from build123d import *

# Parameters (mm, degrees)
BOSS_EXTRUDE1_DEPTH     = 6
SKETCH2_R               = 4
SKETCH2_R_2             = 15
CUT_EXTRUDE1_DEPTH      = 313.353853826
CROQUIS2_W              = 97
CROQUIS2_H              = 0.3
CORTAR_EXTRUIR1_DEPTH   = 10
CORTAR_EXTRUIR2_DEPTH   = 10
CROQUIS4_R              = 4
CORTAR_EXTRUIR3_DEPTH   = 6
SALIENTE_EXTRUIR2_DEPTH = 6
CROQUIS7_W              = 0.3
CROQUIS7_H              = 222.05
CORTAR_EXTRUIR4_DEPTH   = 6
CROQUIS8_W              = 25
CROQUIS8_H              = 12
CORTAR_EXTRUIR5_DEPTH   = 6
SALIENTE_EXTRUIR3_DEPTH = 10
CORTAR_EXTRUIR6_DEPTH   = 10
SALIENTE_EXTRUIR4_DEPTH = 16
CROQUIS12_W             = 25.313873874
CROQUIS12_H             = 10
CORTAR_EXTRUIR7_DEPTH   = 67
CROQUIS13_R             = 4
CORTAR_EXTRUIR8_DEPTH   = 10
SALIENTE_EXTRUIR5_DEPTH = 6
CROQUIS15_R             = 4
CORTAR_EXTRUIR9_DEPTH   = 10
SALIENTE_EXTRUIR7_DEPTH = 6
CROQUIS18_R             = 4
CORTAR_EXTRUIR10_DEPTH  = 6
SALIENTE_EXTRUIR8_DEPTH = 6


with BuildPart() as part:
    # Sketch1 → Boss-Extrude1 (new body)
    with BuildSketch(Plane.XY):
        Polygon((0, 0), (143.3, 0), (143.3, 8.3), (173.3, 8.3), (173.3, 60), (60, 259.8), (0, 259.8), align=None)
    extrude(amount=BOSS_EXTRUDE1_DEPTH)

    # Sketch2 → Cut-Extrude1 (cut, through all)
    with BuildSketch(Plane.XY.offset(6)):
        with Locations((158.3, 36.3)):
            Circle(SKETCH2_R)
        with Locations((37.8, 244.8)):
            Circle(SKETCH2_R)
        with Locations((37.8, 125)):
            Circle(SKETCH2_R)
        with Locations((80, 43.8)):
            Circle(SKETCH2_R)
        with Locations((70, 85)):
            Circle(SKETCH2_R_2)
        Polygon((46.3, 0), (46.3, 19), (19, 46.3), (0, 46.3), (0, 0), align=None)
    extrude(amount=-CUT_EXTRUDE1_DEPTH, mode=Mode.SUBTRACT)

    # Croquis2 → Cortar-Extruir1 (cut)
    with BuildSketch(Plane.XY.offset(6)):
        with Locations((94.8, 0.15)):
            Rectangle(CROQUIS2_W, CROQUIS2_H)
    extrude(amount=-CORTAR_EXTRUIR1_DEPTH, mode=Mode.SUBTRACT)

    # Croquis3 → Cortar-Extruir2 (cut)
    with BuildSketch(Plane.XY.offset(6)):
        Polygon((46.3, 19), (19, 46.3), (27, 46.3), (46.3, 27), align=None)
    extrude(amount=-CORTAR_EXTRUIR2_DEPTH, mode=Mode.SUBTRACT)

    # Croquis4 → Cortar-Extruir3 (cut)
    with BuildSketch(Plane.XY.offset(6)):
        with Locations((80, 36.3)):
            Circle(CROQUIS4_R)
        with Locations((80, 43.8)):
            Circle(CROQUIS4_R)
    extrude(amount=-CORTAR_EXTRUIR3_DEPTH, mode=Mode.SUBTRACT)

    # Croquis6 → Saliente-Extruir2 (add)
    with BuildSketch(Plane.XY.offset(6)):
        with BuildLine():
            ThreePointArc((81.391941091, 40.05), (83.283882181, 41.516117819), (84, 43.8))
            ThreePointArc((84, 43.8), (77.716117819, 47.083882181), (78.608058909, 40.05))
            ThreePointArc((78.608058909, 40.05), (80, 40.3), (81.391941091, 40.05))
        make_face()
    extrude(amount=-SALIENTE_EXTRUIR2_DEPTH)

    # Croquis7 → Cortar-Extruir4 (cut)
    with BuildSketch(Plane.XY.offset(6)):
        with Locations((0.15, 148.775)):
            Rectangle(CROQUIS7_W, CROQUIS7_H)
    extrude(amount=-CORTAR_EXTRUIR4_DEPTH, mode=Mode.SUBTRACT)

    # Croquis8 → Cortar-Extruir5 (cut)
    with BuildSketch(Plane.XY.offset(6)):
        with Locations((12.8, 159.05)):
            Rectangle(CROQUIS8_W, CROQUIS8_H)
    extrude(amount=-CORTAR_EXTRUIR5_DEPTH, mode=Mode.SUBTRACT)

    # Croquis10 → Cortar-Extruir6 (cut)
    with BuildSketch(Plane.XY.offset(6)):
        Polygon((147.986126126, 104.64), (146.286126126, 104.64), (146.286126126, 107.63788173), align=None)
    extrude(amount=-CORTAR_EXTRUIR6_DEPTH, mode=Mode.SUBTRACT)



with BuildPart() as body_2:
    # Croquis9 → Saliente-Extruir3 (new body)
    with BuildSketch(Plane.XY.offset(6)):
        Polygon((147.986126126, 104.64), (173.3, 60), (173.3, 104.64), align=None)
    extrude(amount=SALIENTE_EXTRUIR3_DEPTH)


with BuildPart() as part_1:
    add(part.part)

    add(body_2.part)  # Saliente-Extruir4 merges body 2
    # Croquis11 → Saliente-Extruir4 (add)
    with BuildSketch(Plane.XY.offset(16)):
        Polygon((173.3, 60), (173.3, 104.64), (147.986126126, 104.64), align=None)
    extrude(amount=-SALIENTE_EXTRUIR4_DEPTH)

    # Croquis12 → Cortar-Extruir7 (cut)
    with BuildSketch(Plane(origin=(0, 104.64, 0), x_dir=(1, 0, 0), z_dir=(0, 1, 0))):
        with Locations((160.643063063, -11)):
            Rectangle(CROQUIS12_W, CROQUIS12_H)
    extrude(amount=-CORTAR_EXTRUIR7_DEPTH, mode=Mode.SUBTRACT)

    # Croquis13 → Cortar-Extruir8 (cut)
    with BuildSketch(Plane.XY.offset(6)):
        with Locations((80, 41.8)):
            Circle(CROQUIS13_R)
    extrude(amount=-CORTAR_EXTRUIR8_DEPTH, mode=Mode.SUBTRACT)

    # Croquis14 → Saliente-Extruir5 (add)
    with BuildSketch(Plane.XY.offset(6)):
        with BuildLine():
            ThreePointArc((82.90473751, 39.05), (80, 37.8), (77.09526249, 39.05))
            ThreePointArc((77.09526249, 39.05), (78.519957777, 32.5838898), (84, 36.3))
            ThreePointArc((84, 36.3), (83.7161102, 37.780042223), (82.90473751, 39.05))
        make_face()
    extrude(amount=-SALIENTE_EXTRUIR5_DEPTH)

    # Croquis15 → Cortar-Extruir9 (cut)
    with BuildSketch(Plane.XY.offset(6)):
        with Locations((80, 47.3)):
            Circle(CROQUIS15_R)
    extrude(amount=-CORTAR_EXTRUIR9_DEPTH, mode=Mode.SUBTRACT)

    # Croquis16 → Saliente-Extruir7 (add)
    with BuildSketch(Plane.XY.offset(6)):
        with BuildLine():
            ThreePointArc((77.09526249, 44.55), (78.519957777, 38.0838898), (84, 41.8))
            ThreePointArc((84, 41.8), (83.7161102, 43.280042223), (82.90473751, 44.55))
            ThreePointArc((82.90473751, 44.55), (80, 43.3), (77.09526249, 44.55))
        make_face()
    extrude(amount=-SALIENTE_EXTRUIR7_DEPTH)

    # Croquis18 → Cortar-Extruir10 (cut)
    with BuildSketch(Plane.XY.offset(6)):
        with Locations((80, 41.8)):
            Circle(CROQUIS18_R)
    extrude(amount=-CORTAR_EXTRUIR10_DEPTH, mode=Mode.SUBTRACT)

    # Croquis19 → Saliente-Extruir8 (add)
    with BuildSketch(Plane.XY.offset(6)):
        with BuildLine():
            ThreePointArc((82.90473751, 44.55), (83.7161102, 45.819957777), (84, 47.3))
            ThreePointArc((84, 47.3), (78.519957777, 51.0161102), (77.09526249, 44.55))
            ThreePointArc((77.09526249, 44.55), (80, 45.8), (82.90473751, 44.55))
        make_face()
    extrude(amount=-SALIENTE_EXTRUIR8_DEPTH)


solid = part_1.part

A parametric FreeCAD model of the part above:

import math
import FreeCAD as App
import Part
import Sketcher
from FreeCAD import Vector

doc = App.newDocument("Part")
body = doc.addObject("PartDesign::Body", "Body")

# Sketch on XY plane
sketch1 = body.newObject("Sketcher::SketchObject", "Sketch")
sketch1.AttachmentSupport = (doc.getObject("XY_Plane"), [""])
sketch1.MapMode = "FlatFace"
sketch1.addGeometry(Part.LineSegment(Vector(0, 0, 0), Vector(143, 0, 0)), False)
sketch1.addGeometry(Part.LineSegment(Vector(143, 0, 0), Vector(143, 8, 0)), False)
sketch1.addGeometry(Part.LineSegment(Vector(143, 8, 0), Vector(173, 8, 0)), False)
sketch1.addGeometry(Part.LineSegment(Vector(173, 8, 0), Vector(173, 60, 0)), False)
sketch1.addGeometry(Part.LineSegment(Vector(173, 60, 0), Vector(60, 260, 0)), False)
sketch1.addGeometry(Part.LineSegment(Vector(60, 260, 0), Vector(0, 260, 0)), False)
sketch1.addGeometry(Part.LineSegment(Vector(0, 260, 0), Vector(0, 0, 0)), False)
sketch1.addConstraint(Sketcher.Constraint("Coincident", 0, 2, 1, 1))
sketch1.addConstraint(Sketcher.Constraint("Coincident", 1, 2, 2, 1))
sketch1.addConstraint(Sketcher.Constraint("Coincident", 2, 2, 3, 1))
sketch1.addConstraint(Sketcher.Constraint("Coincident", 3, 2, 4, 1))
sketch1.addConstraint(Sketcher.Constraint("Coincident", 4, 2, 5, 1))
sketch1.addConstraint(Sketcher.Constraint("Coincident", 5, 2, 6, 1))
sketch1.addConstraint(Sketcher.Constraint("Coincident", 6, 2, 0, 1))
sketch1.addConstraint(Sketcher.Constraint("Horizontal", 0))
sketch1.addConstraint(Sketcher.Constraint("Vertical", 1))
sketch1.addConstraint(Sketcher.Constraint("Horizontal", 2))
sketch1.addConstraint(Sketcher.Constraint("Vertical", 3))
sketch1.addConstraint(Sketcher.Constraint("Horizontal", 5))
sketch1.addConstraint(Sketcher.Constraint("Vertical", 6))
sketch1.addConstraint(Sketcher.Constraint("Coincident", 6, 2, -1, 1))
sketch1.addConstraint(Sketcher.Constraint("DistanceX", 2, 1, 2, 2, 30.0))
sketch1.addConstraint(Sketcher.Constraint("DistanceX", 5, 2, 5, 1, 60.0))
sketch1.addConstraint(Sketcher.Constraint("DistanceX", 0, 1, 0, 2, 143.3))
sketch1.addConstraint(Sketcher.Constraint("DistanceY", 1, 1, 1, 2, 8.3))
sketch1.addConstraint(Sketcher.Constraint("DistanceY", 3, 1, 3, 2, 51.7))
sketch1.addConstraint(Sketcher.Constraint("DistanceY", 6, 2, 6, 1, 259.8))
pad1 = body.newObject("PartDesign::Pad", "Pad")
pad1.Profile = sketch1
pad1.Length = 6

# Sketch on XY plane
sketch2 = body.newObject("Sketcher::SketchObject", "Sketch001")
sketch2.AttachmentSupport = (doc.getObject("XY_Plane"), [""])
sketch2.MapMode = "FlatFace"
sketch2.AttachmentOffset = App.Placement(Vector(0, 0, 6), App.Rotation())
sketch2.addGeometry(Part.Circle(Vector(158.3, 36.3, 0), Vector(0, 0, 1), 4), False)
sketch2.addGeometry(Part.Circle(Vector(37.8, 244.8, 0), Vector(0, 0, 1), 4), False)
sketch2.addGeometry(Part.Circle(Vector(37.8, 125, 0), Vector(0, 0, 1), 4), False)
sketch2.addGeometry(Part.Circle(Vector(80, 43.8, 0), Vector(0, 0, 1), 4), False)
sketch2.addGeometry(Part.Circle(Vector(70, 85, 0), Vector(0, 0, 1), 15), False)
sketch2.addGeometry(Part.LineSegment(Vector(46.3, 0, 0), Vector(46.3, 19, 0)), False)
sketch2.addGeometry(Part.LineSegment(Vector(46.3, 19, 0), Vector(19, 46.3, 0)), False)
sketch2.addGeometry(Part.LineSegment(Vector(19, 46.3, 0), Vector(0, 46.3, 0)), False)
sketch2.addGeometry(Part.LineSegment(Vector(0, 46.3, 0), Vector(0, 0, 0)), False)
sketch2.addGeometry(Part.LineSegment(Vector(0, 0, 0), Vector(46.3, 0, 0)), False)
sketch2.addConstraint(Sketcher.Constraint("Coincident", 5, 2, 6, 1))
sketch2.addConstraint(Sketcher.Constraint("Coincident", 6, 2, 7, 1))
sketch2.addConstraint(Sketcher.Constraint("Coincident", 7, 2, 8, 1))
sketch2.addConstraint(Sketcher.Constraint("Coincident", 8, 2, 9, 1))
sketch2.addConstraint(Sketcher.Constraint("Coincident", 9, 2, 5, 1))
sketch2.addConstraint(Sketcher.Constraint("Vertical", 5))
sketch2.addConstraint(Sketcher.Constraint("Horizontal", 7))
sketch2.addConstraint(Sketcher.Constraint("Vertical", 8))
sketch2.addConstraint(Sketcher.Constraint("Horizontal", 9))
sketch2.addConstraint(Sketcher.Constraint("Coincident", 8, 2, -1, 1))
sketch2.addConstraint(Sketcher.Constraint("Equal", 0, 1))
sketch2.addConstraint(Sketcher.Constraint("Equal", 1, 2))
sketch2.addConstraint(Sketcher.Constraint("Equal", 2, 3))
sketch2.addConstraint(Sketcher.Constraint("Vertical", 1, 3, 2, 3))
sketch2.addConstraint(Sketcher.Constraint("Equal", 7, 5))
sketch2.addConstraint(Sketcher.Constraint("Equal", 9, 8))
sketch2.addConstraint(Sketcher.Constraint("Diameter", 0, 8.0))
sketch2.addConstraint(Sketcher.Constraint("Diameter", 4, 30.0))
sketch2.addConstraint(Sketcher.Constraint("DistanceX", 7, 2, 7, 1, 19.0))
sketch2.addConstraint(Sketcher.Constraint("DistanceX", 9, 1, 9, 2, 46.3))
sketch2.addConstraint(Sketcher.Constraint("DistanceY", -1, 1, 2, 3, 125.0))
sketch2.addConstraint(Sketcher.Constraint("DistanceX", -1, 1, 3, 3, 80.0))
sketch2.addConstraint(Sketcher.Constraint("DistanceX", -1, 1, 4, 3, 70.0))
sketch2.addConstraint(Sketcher.Constraint("DistanceY", -1, 1, 4, 3, 85.0))
sketch2.addConstraint(Sketcher.Constraint("DistanceY", 3, 3, 1, 3, 201.0))
sketch2.addConstraint(Sketcher.Constraint("DistanceX", 5, 2, 0, 3, 112.0))
sketch2.addConstraint(Sketcher.Constraint("DistanceY", 0, 3, 6, 2, 10.0))
sketch2.addConstraint(Sketcher.Constraint("DistanceX", -1, 1, 1, 3, 37.8))
sketch2.addConstraint(Sketcher.Constraint("DistanceY", -1, 1, 1, 3, 244.8))
pocket1 = body.newObject("PartDesign::Pocket", "Pocket")
pocket1.Profile = sketch2
pocket1.Type = "ThroughAll"

# Sketch on XY plane
sketch3 = body.newObject("Sketcher::SketchObject", "Sketch002")
sketch3.AttachmentSupport = (doc.getObject("XY_Plane"), [""])
sketch3.MapMode = "FlatFace"
sketch3.AttachmentOffset = App.Placement(Vector(0, 0, 6), App.Rotation())
sketch3.addGeometry(Part.LineSegment(Vector(46.3, 0.3, 0), Vector(46.3, 0, 0)), False)
sketch3.addGeometry(Part.LineSegment(Vector(46.3, 0, 0), Vector(143.3, 0, 0)), False)
sketch3.addGeometry(Part.LineSegment(Vector(143.3, 0, 0), Vector(143.3, 0.3, 0)), False)
sketch3.addGeometry(Part.LineSegment(Vector(143.3, 0.3, 0), Vector(46.3, 0.3, 0)), False)
sketch3.addConstraint(Sketcher.Constraint("Coincident", 0, 2, 1, 1))
sketch3.addConstraint(Sketcher.Constraint("Coincident", 1, 2, 2, 1))
sketch3.addConstraint(Sketcher.Constraint("Coincident", 2, 2, 3, 1))
sketch3.addConstraint(Sketcher.Constraint("Coincident", 3, 2, 0, 1))
sketch3.addConstraint(Sketcher.Constraint("Vertical", 0))
sketch3.addConstraint(Sketcher.Constraint("Horizontal", 1))
sketch3.addConstraint(Sketcher.Constraint("Vertical", 2))
sketch3.addConstraint(Sketcher.Constraint("Horizontal", 3))
sketch3.addConstraint(Sketcher.Constraint("PointOnObject", 0, 2, -1))
sketch3.addConstraint(Sketcher.Constraint("DistanceX", 1, 1, 1, 2, 97.0))
sketch3.addConstraint(Sketcher.Constraint("DistanceY", 0, 2, 0, 1, 0.3))
sketch3.addConstraint(Sketcher.Constraint("DistanceX", -1, 1, 0, 2, 46.3))
pocket2 = body.newObject("PartDesign::Pocket", "Pocket001")
pocket2.Profile = sketch3
pocket2.Length = 10

# Sketch on XY plane
sketch4 = body.newObject("Sketcher::SketchObject", "Sketch003")
sketch4.AttachmentSupport = (doc.getObject("XY_Plane"), [""])
sketch4.MapMode = "FlatFace"
sketch4.AttachmentOffset = App.Placement(Vector(0, 0, 6), App.Rotation())
sketch4.addGeometry(Part.LineSegment(Vector(19, 46, 0), Vector(46, 19, 0)), False)
sketch4.addGeometry(Part.LineSegment(Vector(46, 19, 0), Vector(46, 27, 0)), False)
sketch4.addGeometry(Part.LineSegment(Vector(46, 27, 0), Vector(27, 46, 0)), False)
sketch4.addGeometry(Part.LineSegment(Vector(27, 46, 0), Vector(19, 46, 0)), False)
sketch4.addConstraint(Sketcher.Constraint("Coincident", 0, 2, 1, 1))
sketch4.addConstraint(Sketcher.Constraint("Coincident", 1, 2, 2, 1))
sketch4.addConstraint(Sketcher.Constraint("Coincident", 2, 2, 3, 1))
sketch4.addConstraint(Sketcher.Constraint("Coincident", 3, 2, 0, 1))
sketch4.addConstraint(Sketcher.Constraint("Vertical", 1))
sketch4.addConstraint(Sketcher.Constraint("Horizontal", 3))
sketch4.addConstraint(Sketcher.Constraint("Parallel", 0, 2))
sketch4.addConstraint(Sketcher.Constraint("Equal", 3, 1))
sketch4.addConstraint(Sketcher.Constraint("DistanceX", 3, 2, 3, 1, 8.0))
sketch4.addConstraint(Sketcher.Constraint("DistanceY", -1, 1, 0, 2, 19.0))
sketch4.addConstraint(Sketcher.Constraint("DistanceX", -1, 1, 2, 2, 27.0))
sketch4.addConstraint(Sketcher.Constraint("DistanceX", -1, 1, 0, 2, 46.3))
pocket3 = body.newObject("PartDesign::Pocket", "Pocket002")
pocket3.Profile = sketch4
pocket3.Length = 10

# Sketch on XY plane
sketch5 = body.newObject("Sketcher::SketchObject", "Sketch004")
sketch5.AttachmentSupport = (doc.getObject("XY_Plane"), [""])
sketch5.MapMode = "FlatFace"
sketch5.AttachmentOffset = App.Placement(Vector(0, 0, 6), App.Rotation())
sketch5.addGeometry(Part.ArcOfCircle(Part.Circle(Vector(80, 36.3, 0), Vector(0, 0, 1), 4), math.radians(110), math.radians(430)), False)
sketch5.addGeometry(Part.ArcOfCircle(Part.Circle(Vector(80, 43.8, 0), Vector(0, 0, 1), 4), math.radians(-70), math.radians(250)), False)
sketch5.addConstraint(Sketcher.Constraint("Coincident", 0, 1, 1, 2))
sketch5.addConstraint(Sketcher.Constraint("Coincident", 1, 1, 0, 2))
sketch5.addConstraint(Sketcher.Constraint("Equal", 0, 1))
sketch5.addConstraint(Sketcher.Constraint("Horizontal", 0, 1, 1, 1))
sketch5.addConstraint(Sketcher.Constraint("Radius", 0, 4.0))
sketch5.addConstraint(Sketcher.Constraint("DistanceX", -1, 1, 0, 3, 80.0))
sketch5.addConstraint(Sketcher.Constraint("DistanceY", -1, 1, 0, 3, 36.3))
sketch5.addConstraint(Sketcher.Constraint("DistanceY", -1, 1, 1, 3, 43.8))
pocket4 = body.newObject("PartDesign::Pocket", "Pocket003")
pocket4.Profile = sketch5
pocket4.Length = 6

# Sketch on XY plane
sketch6 = body.newObject("Sketcher::SketchObject", "Sketch005")
sketch6.AttachmentSupport = (doc.getObject("XY_Plane"), [""])
sketch6.MapMode = "FlatFace"
sketch6.AttachmentOffset = App.Placement(Vector(0, 0, 6), App.Rotation())
sketch6.addGeometry(Part.ArcOfCircle(Part.Circle(Vector(80, 43.8, 0), Vector(0, 0, 1), 4), math.radians(-70), math.radians(0)), False)
sketch6.addGeometry(Part.ArcOfCircle(Part.Circle(Vector(80, 43.8, 0), Vector(0, 0, 1), 4), math.radians(0), math.radians(250)), False)
sketch6.addGeometry(Part.ArcOfCircle(Part.Circle(Vector(80, 36.3, 0), Vector(0, 0, 1), 4), math.radians(70), math.radians(110)), False)
sketch6.addConstraint(Sketcher.Constraint("Tangent", 0, 2, 1, 1))
sketch6.addConstraint(Sketcher.Constraint("Coincident", 1, 2, 2, 2))
sketch6.addConstraint(Sketcher.Constraint("Coincident", 2, 1, 0, 1))
sketch6.addConstraint(Sketcher.Constraint("Equal", 0, 1))
sketch6.addConstraint(Sketcher.Constraint("Equal", 1, 2))
sketch6.addConstraint(Sketcher.Constraint("Horizontal", 1, 3, 0, 2))
sketch6.addConstraint(Sketcher.Constraint("Horizontal", 1, 2, 2, 1))
sketch6.addConstraint(Sketcher.Constraint("Radius", 0, 4.0))
sketch6.addConstraint(Sketcher.Constraint("DistanceX", -1, 1, 0, 3, 80.0))
sketch6.addConstraint(Sketcher.Constraint("DistanceY", -1, 1, 0, 3, 43.8))
sketch6.addConstraint(Sketcher.Constraint("DistanceY", -1, 1, 2, 3, 36.3))
pad2 = body.newObject("PartDesign::Pad", "Pad001")
pad2.Profile = sketch6
pad2.Length = 6
pad2.Reversed = True

# Sketch on XY plane
sketch7 = body.newObject("Sketcher::SketchObject", "Sketch006")
sketch7.AttachmentSupport = (doc.getObject("XY_Plane"), [""])
sketch7.MapMode = "FlatFace"
sketch7.AttachmentOffset = App.Placement(Vector(0, 0, 6), App.Rotation())
sketch7.addGeometry(Part.LineSegment(Vector(0, 259.8, 0), Vector(0, 37.75, 0)), False)
sketch7.addGeometry(Part.LineSegment(Vector(0, 37.75, 0), Vector(0.3, 37.75, 0)), False)
sketch7.addGeometry(Part.LineSegment(Vector(0.3, 37.75, 0), Vector(0.3, 259.8, 0)), False)
sketch7.addGeometry(Part.LineSegment(Vector(0.3, 259.8, 0), Vector(0, 259.8, 0)), False)
sketch7.addConstraint(Sketcher.Constraint("Coincident", 0, 2, 1, 1))
sketch7.addConstraint(Sketcher.Constraint("Coincident", 1, 2, 2, 1))
sketch7.addConstraint(Sketcher.Constraint("Coincident", 2, 2, 3, 1))
sketch7.addConstraint(Sketcher.Constraint("Coincident", 3, 2, 0, 1))
sketch7.addConstraint(Sketcher.Constraint("Vertical", 0))
sketch7.addConstraint(Sketcher.Constraint("Horizontal", 1))
sketch7.addConstraint(Sketcher.Constraint("Vertical", 2))
sketch7.addConstraint(Sketcher.Constraint("Horizontal", 3))
sketch7.addConstraint(Sketcher.Constraint("PointOnObject", 0, 2, -2))
sketch7.addConstraint(Sketcher.Constraint("DistanceX", 1, 1, 1, 2, 0.3))
sketch7.addConstraint(Sketcher.Constraint("DistanceY", 0, 2, 0, 1, 222.05))
sketch7.addConstraint(Sketcher.Constraint("DistanceY", -1, 1, 2, 2, 259.8))
pocket5 = body.newObject("PartDesign::Pocket", "Pocket004")
pocket5.Profile = sketch7
pocket5.Length = 6

# Sketch on XY plane
sketch8 = body.newObject("Sketcher::SketchObject", "Sketch007")
sketch8.AttachmentSupport = (doc.getObject("XY_Plane"), [""])
sketch8.MapMode = "FlatFace"
sketch8.AttachmentOffset = App.Placement(Vector(0, 0, 6), App.Rotation())
sketch8.addGeometry(Part.LineSegment(Vector(0, 165, 0), Vector(0, 153, 0)), False)
sketch8.addGeometry(Part.LineSegment(Vector(0, 153, 0), Vector(25, 153, 0)), False)
sketch8.addGeometry(Part.LineSegment(Vector(25, 153, 0), Vector(25, 165, 0)), False)
sketch8.addGeometry(Part.LineSegment(Vector(25, 165, 0), Vector(0, 165, 0)), False)
sketch8.addConstraint(Sketcher.Constraint("Coincident", 0, 2, 1, 1))
sketch8.addConstraint(Sketcher.Constraint("Coincident", 1, 2, 2, 1))
sketch8.addConstraint(Sketcher.Constraint("Coincident", 2, 2, 3, 1))
sketch8.addConstraint(Sketcher.Constraint("Coincident", 3, 2, 0, 1))
sketch8.addConstraint(Sketcher.Constraint("Vertical", 0))
sketch8.addConstraint(Sketcher.Constraint("Horizontal", 1))
sketch8.addConstraint(Sketcher.Constraint("Vertical", 2))
sketch8.addConstraint(Sketcher.Constraint("Horizontal", 3))
sketch8.addConstraint(Sketcher.Constraint("DistanceX", 1, 1, 1, 2, 25.0))
sketch8.addConstraint(Sketcher.Constraint("DistanceY", 0, 2, 0, 1, 12.0))
sketch8.addConstraint(Sketcher.Constraint("DistanceX", -1, 1, 0, 2, 0.3))
sketch8.addConstraint(Sketcher.Constraint("DistanceY", -1, 1, 0, 2, 153.05))
pocket6 = body.newObject("PartDesign::Pocket", "Pocket005")
pocket6.Profile = sketch8
pocket6.Length = 6

# Sketch on XY plane
sketch9 = body.newObject("Sketcher::SketchObject", "Sketch008")
sketch9.AttachmentSupport = (doc.getObject("XY_Plane"), [""])
sketch9.MapMode = "FlatFace"
sketch9.AttachmentOffset = App.Placement(Vector(0, 0, 6), App.Rotation())
sketch9.addGeometry(Part.LineSegment(Vector(146.3, 104.6, 0), Vector(148, 104.6, 0)), False)
sketch9.addGeometry(Part.LineSegment(Vector(148, 104.6, 0), Vector(146.3, 107.6, 0)), False)
sketch9.addGeometry(Part.LineSegment(Vector(146.3, 107.6, 0), Vector(146.3, 104.6, 0)), False)
sketch9.addConstraint(Sketcher.Constraint("Coincident", 0, 2, 1, 1))
sketch9.addConstraint(Sketcher.Constraint("Coincident", 1, 2, 2, 1))
sketch9.addConstraint(Sketcher.Constraint("Coincident", 2, 2, 0, 1))
sketch9.addConstraint(Sketcher.Constraint("Horizontal", 0))
sketch9.addConstraint(Sketcher.Constraint("Vertical", 2))
sketch9.addConstraint(Sketcher.Constraint("DistanceX", 0, 1, 0, 2, 1.7))
sketch9.addConstraint(Sketcher.Constraint("DistanceY", -1, 1, 0, 2, 104.64))
sketch9.addConstraint(Sketcher.Constraint("DistanceY", 2, 2, 2, 1, 2.997882))
sketch9.addConstraint(Sketcher.Constraint("DistanceX", -1, 1, 0, 2, 147.986126))
pocket7 = body.newObject("PartDesign::Pocket", "Pocket006")
pocket7.Profile = sketch9
pocket7.Length = 10
body2 = doc.addObject("PartDesign::Body", "Body001")

# Sketch on XY plane
sketch10 = body2.newObject("Sketcher::SketchObject", "Sketch009")
sketch10.AttachmentSupport = (doc.getObject("XY_Plane001"), [""])
sketch10.MapMode = "FlatFace"
sketch10.AttachmentOffset = App.Placement(Vector(0, 0, 6), App.Rotation())
sketch10.addGeometry(Part.LineSegment(Vector(148, 105, 0), Vector(173, 60, 0)), False)
sketch10.addGeometry(Part.LineSegment(Vector(173, 60, 0), Vector(173, 105, 0)), False)
sketch10.addGeometry(Part.LineSegment(Vector(173, 105, 0), Vector(148, 105, 0)), False)
sketch10.addConstraint(Sketcher.Constraint("Coincident", 0, 2, 1, 1))
sketch10.addConstraint(Sketcher.Constraint("Coincident", 1, 2, 2, 1))
sketch10.addConstraint(Sketcher.Constraint("Coincident", 2, 2, 0, 1))
sketch10.addConstraint(Sketcher.Constraint("Vertical", 1))
sketch10.addConstraint(Sketcher.Constraint("Horizontal", 2))
sketch10.addConstraint(Sketcher.Constraint("DistanceY", -1, 1, 0, 2, 60.0))
sketch10.addConstraint(Sketcher.Constraint("DistanceY", 1, 1, 1, 2, 44.64))
sketch10.addConstraint(Sketcher.Constraint("DistanceX", -1, 1, 0, 2, 173.3))
sketch10.addConstraint(Sketcher.Constraint("Distance", 0, 51.317851))
pad3 = body2.newObject("PartDesign::Pad", "Pad002")
pad3.Profile = sketch10
pad3.Length = 10
body.AllowCompound = True
doc.recompute()

boolean = body.newObject("PartDesign::Boolean", "Boolean")
boolean.Type = "Fuse"
boolean.addObjects([body2])

# Sketch on XY plane
sketch11 = body.newObject("Sketcher::SketchObject", "Sketch010")
sketch11.AttachmentSupport = (doc.getObject("XY_Plane"), [""])
sketch11.MapMode = "FlatFace"
sketch11.AttachmentOffset = App.Placement(Vector(0, 0, 16), App.Rotation())
sketch11.addGeometry(Part.LineSegment(Vector(173, 60, 0), Vector(173, 105, 0)), False)
sketch11.addGeometry(Part.LineSegment(Vector(173, 105, 0), Vector(148, 105, 0)), False)
sketch11.addGeometry(Part.LineSegment(Vector(148, 105, 0), Vector(173, 60, 0)), False)
sketch11.addConstraint(Sketcher.Constraint("Coincident", 0, 2, 1, 1))
sketch11.addConstraint(Sketcher.Constraint("Coincident", 1, 2, 2, 1))
sketch11.addConstraint(Sketcher.Constraint("Coincident", 2, 2, 0, 1))
sketch11.addConstraint(Sketcher.Constraint("Vertical", 0))
sketch11.addConstraint(Sketcher.Constraint("Horizontal", 1))
sketch11.addConstraint(Sketcher.Constraint("DistanceY", -1, 1, 2, 2, 60.0))
sketch11.addConstraint(Sketcher.Constraint("DistanceY", 0, 1, 0, 2, 44.64))
sketch11.addConstraint(Sketcher.Constraint("DistanceX", -1, 1, 0, 2, 173.3))
sketch11.addConstraint(Sketcher.Constraint("Distance", 2, 51.317851))
pad4 = body.newObject("PartDesign::Pad", "Pad003")
pad4.Profile = sketch11
pad4.Length = 16
pad4.Reversed = True

# Sketch on XZ plane
sketch12 = body.newObject("Sketcher::SketchObject", "Sketch011")
sketch12.AttachmentSupport = (doc.getObject("XZ_Plane"), [""])
sketch12.MapMode = "FlatFace"
sketch12.AttachmentOffset = App.Placement(Vector(0, 0, -104.64), App.Rotation())
sketch12.addGeometry(Part.LineSegment(Vector(148, 6, 0), Vector(148, 16, 0)), False)
sketch12.addGeometry(Part.LineSegment(Vector(148, 16, 0), Vector(173, 16, 0)), False)
sketch12.addGeometry(Part.LineSegment(Vector(173, 16, 0), Vector(173, 6, 0)), False)
sketch12.addGeometry(Part.LineSegment(Vector(173, 6, 0), Vector(148, 6, 0)), False)
sketch12.addConstraint(Sketcher.Constraint("Coincident", 0, 2, 1, 1))
sketch12.addConstraint(Sketcher.Constraint("Coincident", 1, 2, 2, 1))
sketch12.addConstraint(Sketcher.Constraint("Coincident", 2, 2, 3, 1))
sketch12.addConstraint(Sketcher.Constraint("Coincident", 3, 2, 0, 1))
sketch12.addConstraint(Sketcher.Constraint("Vertical", 0))
sketch12.addConstraint(Sketcher.Constraint("Horizontal", 1))
sketch12.addConstraint(Sketcher.Constraint("Vertical", 2))
sketch12.addConstraint(Sketcher.Constraint("Horizontal", 3))
sketch12.addConstraint(Sketcher.Constraint("DistanceY", 0, 1, 0, 2, 10.0))
sketch12.addConstraint(Sketcher.Constraint("DistanceY", -1, 1, 0, 2, 16.0))
sketch12.addConstraint(Sketcher.Constraint("DistanceX", -1, 1, 1, 2, 173.3))
sketch12.addConstraint(Sketcher.Constraint("DistanceX", 1, 1, 1, 2, 25.313874))
pocket8 = body.newObject("PartDesign::Pocket", "Pocket007")
pocket8.Profile = sketch12
pocket8.Length = 67
pocket8.Reversed = True

# Sketch on XY plane
sketch13 = body.newObject("Sketcher::SketchObject", "Sketch012")
sketch13.AttachmentSupport = (doc.getObject("XY_Plane"), [""])
sketch13.MapMode = "FlatFace"
sketch13.AttachmentOffset = App.Placement(Vector(0, 0, 6), App.Rotation())
sketch13.addGeometry(Part.Circle(Vector(80, 41.8, 0), Vector(0, 0, 1), 4), False)
sketch13.addConstraint(Sketcher.Constraint("Diameter", 0, 8.0))
sketch13.addConstraint(Sketcher.Constraint("DistanceX", -1, 1, 0, 3, 80.0))
sketch13.addConstraint(Sketcher.Constraint("DistanceY", -1, 1, 0, 3, 41.8))
pocket9 = body.newObject("PartDesign::Pocket", "Pocket008")
pocket9.Profile = sketch13
pocket9.Length = 10

# Sketch on XY plane
sketch14 = body.newObject("Sketcher::SketchObject", "Sketch013")
sketch14.AttachmentSupport = (doc.getObject("XY_Plane"), [""])
sketch14.MapMode = "FlatFace"
sketch14.AttachmentOffset = App.Placement(Vector(0, 0, 6), App.Rotation())
sketch14.addGeometry(Part.ArcOfCircle(Part.Circle(Vector(80, 41.8, 0), Vector(0, 0, 1), 4), math.radians(-137), math.radians(-43)), False)
sketch14.addGeometry(Part.ArcOfCircle(Part.Circle(Vector(80, 36.3, 0), Vector(0, 0, 1), 4), math.radians(137), math.radians(360)), False)
sketch14.addGeometry(Part.ArcOfCircle(Part.Circle(Vector(80, 36.3, 0), Vector(0, 0, 1), 4), math.radians(0), math.radians(43)), False)
sketch14.addConstraint(Sketcher.Constraint("Coincident", 0, 1, 1, 1))
sketch14.addConstraint(Sketcher.Constraint("Tangent", 1, 2, 2, 1))
sketch14.addConstraint(Sketcher.Constraint("Coincident", 2, 2, 0, 2))
sketch14.addConstraint(Sketcher.Constraint("Equal", 0, 1))
sketch14.addConstraint(Sketcher.Constraint("Equal", 1, 2))
sketch14.addConstraint(Sketcher.Constraint("Horizontal", 2, 3, 1, 2))
sketch14.addConstraint(Sketcher.Constraint("Horizontal", 0, 1, 2, 2))
sketch14.addConstraint(Sketcher.Constraint("Radius", 0, 4.0))
sketch14.addConstraint(Sketcher.Constraint("DistanceX", -1, 1, 0, 3, 80.0))
sketch14.addConstraint(Sketcher.Constraint("DistanceY", -1, 1, 0, 3, 41.8))
sketch14.addConstraint(Sketcher.Constraint("DistanceY", -1, 1, 1, 3, 36.3))
pad5 = body.newObject("PartDesign::Pad", "Pad004")
pad5.Profile = sketch14
pad5.Length = 6
pad5.Reversed = True

# Sketch on XY plane
sketch15 = body.newObject("Sketcher::SketchObject", "Sketch014")
sketch15.AttachmentSupport = (doc.getObject("XY_Plane"), [""])
sketch15.MapMode = "FlatFace"
sketch15.AttachmentOffset = App.Placement(Vector(0, 0, 6), App.Rotation())
sketch15.addGeometry(Part.Circle(Vector(80, 47.3, 0), Vector(0, 0, 1), 4), False)
sketch15.addConstraint(Sketcher.Constraint("Diameter", 0, 8.0))
sketch15.addConstraint(Sketcher.Constraint("DistanceX", -1, 1, 0, 3, 80.0))
sketch15.addConstraint(Sketcher.Constraint("DistanceY", -1, 1, 0, 3, 47.3))
pocket10 = body.newObject("PartDesign::Pocket", "Pocket009")
pocket10.Profile = sketch15
pocket10.Length = 10

# Sketch on XY plane
sketch16 = body.newObject("Sketcher::SketchObject", "Sketch015")
sketch16.AttachmentSupport = (doc.getObject("XY_Plane"), [""])
sketch16.MapMode = "FlatFace"
sketch16.AttachmentOffset = App.Placement(Vector(0, 0, 6), App.Rotation())
sketch16.addGeometry(Part.ArcOfCircle(Part.Circle(Vector(80, 41.8, 0), Vector(0, 0, 1), 4), math.radians(137), math.radians(360)), False)
sketch16.addGeometry(Part.ArcOfCircle(Part.Circle(Vector(80, 41.8, 0), Vector(0, 0, 1), 4), math.radians(0), math.radians(43)), False)
sketch16.addGeometry(Part.ArcOfCircle(Part.Circle(Vector(80, 47.3, 0), Vector(0, 0, 1), 4), math.radians(-137), math.radians(-43)), False)
sketch16.addConstraint(Sketcher.Constraint("Tangent", 0, 2, 1, 1))
sketch16.addConstraint(Sketcher.Constraint("Coincident", 1, 2, 2, 2))
sketch16.addConstraint(Sketcher.Constraint("Coincident", 2, 1, 0, 1))
sketch16.addConstraint(Sketcher.Constraint("Equal", 0, 1))
sketch16.addConstraint(Sketcher.Constraint("Equal", 1, 2))
sketch16.addConstraint(Sketcher.Constraint("Horizontal", 1, 3, 0, 2))
sketch16.addConstraint(Sketcher.Constraint("Horizontal", 1, 2, 2, 1))
sketch16.addConstraint(Sketcher.Constraint("Radius", 0, 4.0))
sketch16.addConstraint(Sketcher.Constraint("DistanceX", -1, 1, 0, 3, 80.0))
sketch16.addConstraint(Sketcher.Constraint("DistanceY", -1, 1, 0, 3, 41.8))
sketch16.addConstraint(Sketcher.Constraint("DistanceY", -1, 1, 2, 3, 47.3))
pad6 = body.newObject("PartDesign::Pad", "Pad005")
pad6.Profile = sketch16
pad6.Length = 6
pad6.Reversed = True

# Sketch on XY plane
sketch17 = body.newObject("Sketcher::SketchObject", "Sketch016")
sketch17.AttachmentSupport = (doc.getObject("XY_Plane"), [""])
sketch17.MapMode = "FlatFace"
sketch17.AttachmentOffset = App.Placement(Vector(0, 0, 6), App.Rotation())
sketch17.addGeometry(Part.Circle(Vector(80, 41.8, 0), Vector(0, 0, 1), 4), False)
sketch17.addConstraint(Sketcher.Constraint("Diameter", 0, 8.0))
sketch17.addConstraint(Sketcher.Constraint("DistanceX", -1, 1, 0, 3, 80.0))
sketch17.addConstraint(Sketcher.Constraint("DistanceY", -1, 1, 0, 3, 41.8))
pocket11 = body.newObject("PartDesign::Pocket", "Pocket010")
pocket11.Profile = sketch17
pocket11.Length = 6

# Sketch on XY plane
sketch18 = body.newObject("Sketcher::SketchObject", "Sketch017")
sketch18.AttachmentSupport = (doc.getObject("XY_Plane"), [""])
sketch18.MapMode = "FlatFace"
sketch18.AttachmentOffset = App.Placement(Vector(0, 0, 6), App.Rotation())
sketch18.addGeometry(Part.ArcOfCircle(Part.Circle(Vector(80, 47.3, 0), Vector(0, 0, 1), 4), math.radians(-43), math.radians(0)), False)
sketch18.addGeometry(Part.ArcOfCircle(Part.Circle(Vector(80, 47.3, 0), Vector(0, 0, 1), 4), math.radians(0), math.radians(223)), False)
sketch18.addGeometry(Part.ArcOfCircle(Part.Circle(Vector(80, 41.8, 0), Vector(0, 0, 1), 4), math.radians(43), math.radians(137)), False)
sketch18.addConstraint(Sketcher.Constraint("Tangent", 0, 2, 1, 1))
sketch18.addConstraint(Sketcher.Constraint("Coincident", 1, 2, 2, 2))
sketch18.addConstraint(Sketcher.Constraint("Coincident", 2, 1, 0, 1))
sketch18.addConstraint(Sketcher.Constraint("Equal", 0, 1))
sketch18.addConstraint(Sketcher.Constraint("Equal", 1, 2))
sketch18.addConstraint(Sketcher.Constraint("Horizontal", 1, 3, 0, 2))
sketch18.addConstraint(Sketcher.Constraint("Horizontal", 1, 2, 2, 1))
sketch18.addConstraint(Sketcher.Constraint("Radius", 0, 4.0))
sketch18.addConstraint(Sketcher.Constraint("DistanceX", -1, 1, 0, 3, 80.0))
sketch18.addConstraint(Sketcher.Constraint("DistanceY", -1, 1, 0, 3, 47.3))
sketch18.addConstraint(Sketcher.Constraint("DistanceY", -1, 1, 2, 3, 41.8))
pad7 = body.newObject("PartDesign::Pad", "Pad006")
pad7.Profile = sketch18
pad7.Length = 6
pad7.Reversed = True

doc.recompute()
